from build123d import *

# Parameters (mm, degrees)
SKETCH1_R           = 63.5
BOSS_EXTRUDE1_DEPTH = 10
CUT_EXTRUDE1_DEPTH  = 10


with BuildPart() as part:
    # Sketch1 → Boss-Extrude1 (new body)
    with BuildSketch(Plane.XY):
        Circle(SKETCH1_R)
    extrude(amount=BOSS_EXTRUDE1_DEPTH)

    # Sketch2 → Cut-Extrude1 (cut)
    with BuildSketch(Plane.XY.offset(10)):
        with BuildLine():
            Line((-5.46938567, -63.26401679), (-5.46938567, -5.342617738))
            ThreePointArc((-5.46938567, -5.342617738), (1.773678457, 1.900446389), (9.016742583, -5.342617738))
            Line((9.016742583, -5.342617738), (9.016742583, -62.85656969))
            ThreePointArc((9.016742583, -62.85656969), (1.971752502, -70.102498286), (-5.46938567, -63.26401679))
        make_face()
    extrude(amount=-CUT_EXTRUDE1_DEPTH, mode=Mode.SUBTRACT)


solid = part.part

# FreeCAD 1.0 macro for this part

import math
import FreeCAD as App
import Part
import Sketcher
Q = App.Units.Quantity

doc = App.newDocument("Part")
body = doc.addObject("PartDesign::Body", "Body")

sketch1 = body.newObject("Sketcher::SketchObject", "Sketch")
sketch1.AttachmentSupport = (doc.getObject("XY_Plane"), [""])
sketch1.MapMode = "FlatFace"
sketch1.addGeometry(Part.Circle(App.Vector(0, 0, 0), App.Vector(0, 0, 1), 64), False)
sketch1.addConstraint([
    Sketcher.Constraint("Coincident", 0, 3, -1, 1),
    Sketcher.Constraint("Diameter", 0, Q("127 mm")),
])
pad1 = body.newObject("PartDesign::Pad", "Pad")
pad1.Profile = sketch1
pad1.Length = 10

sketch2 = body.newObject("Sketcher::SketchObject", "Sketch001")
sketch2.AttachmentSupport = (doc.getObject("XY_Plane"), [""])
sketch2.MapMode = "FlatFace"
sketch2.AttachmentOffset = App.Placement(App.Vector(0, 0, 10), App.Rotation())
sketch2.addGeometry([
    Part.LineSegment(App.Vector(-5, -5, 0), App.Vector(-5, -63, 0)),
    Part.ArcOfCircle(Part.Circle(App.Vector(2, -63, 0), App.Vector(0, 0, 1), 7), math.radians(-177), math.radians(0)),
    Part.LineSegment(App.Vector(9, -63, 0), App.Vector(9, -5, 0)),
    Part.ArcOfCircle(Part.Circle(App.Vector(2, -5, 0), App.Vector(0, 0, 1), 7), math.radians(0), math.radians(180)),
], False)
sketch2.addConstraint([
    Sketcher.Constraint("Coincident", 0, 2, 1, 1),
    Sketcher.Constraint("Tangent", 1, 2, 2, 1),
    Sketcher.Constraint("Tangent", 2, 2, 3, 1),
    Sketcher.Constraint("Tangent", 3, 2, 0, 1),
    Sketcher.Constraint("Vertical", 0),
    Sketcher.Constraint("Vertical", 2),
    Sketcher.Constraint("DistanceY", 0, 2, 0, 1, Q("57.921399 mm")),
    Sketcher.Constraint("Radius", 1, Q("7.248794 mm")),
    Sketcher.Constraint("Radius", 3, Q("7.243064 mm")),
    Sketcher.Constraint("DistanceX", -1, 1, 1, 3, Q("1.767948 mm")),
    Sketcher.Constraint("DistanceY", 1, 3, -1, 1, Q("62.85657 mm")),
])
pocket1 = body.newObject("PartDesign::Pocket", "Pocket")
pocket1.Profile = sketch2
pocket1.Length = 10

doc.recompute()
